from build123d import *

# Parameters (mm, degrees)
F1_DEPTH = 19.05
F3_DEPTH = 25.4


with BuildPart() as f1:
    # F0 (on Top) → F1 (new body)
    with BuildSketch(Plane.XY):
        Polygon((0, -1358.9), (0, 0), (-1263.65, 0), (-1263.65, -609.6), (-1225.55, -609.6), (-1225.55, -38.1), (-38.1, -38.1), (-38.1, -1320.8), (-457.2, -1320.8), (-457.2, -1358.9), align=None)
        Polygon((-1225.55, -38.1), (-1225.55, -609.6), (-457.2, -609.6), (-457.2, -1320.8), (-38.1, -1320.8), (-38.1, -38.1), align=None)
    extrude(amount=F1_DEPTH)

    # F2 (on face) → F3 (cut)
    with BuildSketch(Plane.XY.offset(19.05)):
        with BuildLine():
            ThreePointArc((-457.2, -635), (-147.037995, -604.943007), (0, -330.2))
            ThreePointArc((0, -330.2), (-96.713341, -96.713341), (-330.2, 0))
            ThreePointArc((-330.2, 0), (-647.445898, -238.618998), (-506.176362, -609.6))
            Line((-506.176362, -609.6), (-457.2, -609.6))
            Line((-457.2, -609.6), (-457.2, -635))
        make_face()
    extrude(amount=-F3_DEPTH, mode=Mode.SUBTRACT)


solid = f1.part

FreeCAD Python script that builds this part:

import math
import FreeCAD as App
import Part
import Sketcher
Q = App.Units.Quantity

doc = App.newDocument("Part")
body = doc.addObject("PartDesign::Body", "Body")
body.AllowCompound = True

# Sketch on XY plane
sketch1 = body.newObject("Sketcher::SketchObject", "Sketch")
sketch1.AttachmentSupport = (doc.getObject("XY_Plane"), [""])
sketch1.MapMode = "FlatFace"
sketch1.addGeometry([
    Part.LineSegment(App.Vector(0, -1358.9, 0), App.Vector(0, 0, 0)),  # 0
    Part.LineSegment(App.Vector(0, 0, 0), App.Vector(-1263.65, 0, 0)),  # 1
    Part.LineSegment(App.Vector(-1263.65, 0, 0), App.Vector(-1263.65, -609.6, 0)),  # 2
    Part.LineSegment(App.Vector(-1263.65, -609.6, 0), App.Vector(-457.2, -609.6, 0)),  # 3
    Part.LineSegment(App.Vector(-457.2, -609.6, 0), App.Vector(-457.2, -1358.9, 0)),  # 4
    Part.LineSegment(App.Vector(-457.2, -1358.9, 0), App.Vector(0, -1358.9, 0)),  # 5
], False)
sketch1.addConstraint([
    Sketcher.Constraint("Coincident", 0, 2, 1, 1),
    Sketcher.Constraint("Coincident", 1, 2, 2, 1),
    Sketcher.Constraint("Coincident", 2, 2, 3, 1),
    Sketcher.Constraint("Coincident", 3, 2, 4, 1),
    Sketcher.Constraint("Coincident", 4, 2, 5, 1),
    Sketcher.Constraint("Coincident", 5, 2, 0, 1),
    Sketcher.Constraint("Vertical", 0),
    Sketcher.Constraint("Horizontal", 1),
    Sketcher.Constraint("Vertical", 2),
    Sketcher.Constraint("Horizontal", 3),
    Sketcher.Constraint("Vertical", 4),
    Sketcher.Constraint("Horizontal", 5),
    Sketcher.Constraint("Coincident", 0, 2, -1, 1),
    Sketcher.Constraint("DistanceX", 5, 1, 5, 2, Q("18 in")),
    Sketcher.Constraint("DistanceY", 2, 2, 2, 1, Q("24 in")),
    Sketcher.Constraint("DistanceY", 0, 1, 0, 2, Q("53.5 in")),
    Sketcher.Constraint("DistanceX", 1, 2, 1, 1, Q("49.75 in")),
])
pad1 = body.newObject("PartDesign::Pad", "Pad")
pad1.Profile = sketch1
pad1.Length = Q("0.75 in")

# Sketch on XY plane
sketch2 = body.newObject("Sketcher::SketchObject", "Sketch001")
sketch2.AttachmentSupport = (doc.getObject("XY_Plane"), [""])
sketch2.MapMode = "FlatFace"
sketch2.AttachmentOffset = App.Placement(App.Vector(0, 0, 0.75 * 25.4), App.Rotation())
sketch2.addGeometry([
    Part.ArcOfCircle(Part.Circle(App.Vector(-330.2, -330.2, 0), App.Vector(0, 0, 1), 330.2), math.radians(-112.619865), math.radians(0)),  # 0
    Part.ArcOfCircle(Part.Circle(App.Vector(-330.200001, -330.200001, 0), App.Vector(0, 0, 1), 330.200001), math.radians(0), math.radians(90)),  # 1
    Part.ArcOfCircle(Part.Circle(App.Vector(-330.199999, -330.2, 0), App.Vector(0, 0, 1), 330.2), math.radians(90), math.radians(237.795772)),  # 2
    Part.LineSegment(App.Vector(-506.176362, -609.6, 0), App.Vector(-457.2, -609.6, 0)),  # 3
    Part.LineSegment(App.Vector(-457.2, -609.6, 0), App.Vector(-457.2, -635, 0)),  # 4
], False)
sketch2.addConstraint([
    Sketcher.Constraint("Tangent", 0, 2, 1, 1),
    Sketcher.Constraint("Tangent", 1, 2, 2, 1),
    Sketcher.Constraint("Coincident", 2, 2, 3, 1),
    Sketcher.Constraint("Coincident", 3, 2, 4, 1),
    Sketcher.Constraint("Coincident", 4, 2, 0, 1),
    Sketcher.Constraint("Horizontal", 3),
    Sketcher.Constraint("Vertical", 4),
    Sketcher.Constraint("Coincident", 2, 3, 0, 3),
    Sketcher.Constraint("PointOnObject", 0, 2, -2),
    Sketcher.Constraint("PointOnObject", 1, 2, -1),
    Sketcher.Constraint("Horizontal", 2, 3, 0, 2),
    Sketcher.Constraint("Vertical", 2, 3, 1, 2),
    Sketcher.Constraint("Radius", 0, Q("13 in")),
    Sketcher.Constraint("DistanceY", 4, 2, 4, 1, Q("1 in")),
    Sketcher.Constraint("DistanceX", 3, 2, -1, 1, Q("18 in")),
])
pocket1 = body.newObject("PartDesign::Pocket", "Pocket")
pocket1.Profile = sketch2
pocket1.Length = Q("1 in")

doc.recompute()
